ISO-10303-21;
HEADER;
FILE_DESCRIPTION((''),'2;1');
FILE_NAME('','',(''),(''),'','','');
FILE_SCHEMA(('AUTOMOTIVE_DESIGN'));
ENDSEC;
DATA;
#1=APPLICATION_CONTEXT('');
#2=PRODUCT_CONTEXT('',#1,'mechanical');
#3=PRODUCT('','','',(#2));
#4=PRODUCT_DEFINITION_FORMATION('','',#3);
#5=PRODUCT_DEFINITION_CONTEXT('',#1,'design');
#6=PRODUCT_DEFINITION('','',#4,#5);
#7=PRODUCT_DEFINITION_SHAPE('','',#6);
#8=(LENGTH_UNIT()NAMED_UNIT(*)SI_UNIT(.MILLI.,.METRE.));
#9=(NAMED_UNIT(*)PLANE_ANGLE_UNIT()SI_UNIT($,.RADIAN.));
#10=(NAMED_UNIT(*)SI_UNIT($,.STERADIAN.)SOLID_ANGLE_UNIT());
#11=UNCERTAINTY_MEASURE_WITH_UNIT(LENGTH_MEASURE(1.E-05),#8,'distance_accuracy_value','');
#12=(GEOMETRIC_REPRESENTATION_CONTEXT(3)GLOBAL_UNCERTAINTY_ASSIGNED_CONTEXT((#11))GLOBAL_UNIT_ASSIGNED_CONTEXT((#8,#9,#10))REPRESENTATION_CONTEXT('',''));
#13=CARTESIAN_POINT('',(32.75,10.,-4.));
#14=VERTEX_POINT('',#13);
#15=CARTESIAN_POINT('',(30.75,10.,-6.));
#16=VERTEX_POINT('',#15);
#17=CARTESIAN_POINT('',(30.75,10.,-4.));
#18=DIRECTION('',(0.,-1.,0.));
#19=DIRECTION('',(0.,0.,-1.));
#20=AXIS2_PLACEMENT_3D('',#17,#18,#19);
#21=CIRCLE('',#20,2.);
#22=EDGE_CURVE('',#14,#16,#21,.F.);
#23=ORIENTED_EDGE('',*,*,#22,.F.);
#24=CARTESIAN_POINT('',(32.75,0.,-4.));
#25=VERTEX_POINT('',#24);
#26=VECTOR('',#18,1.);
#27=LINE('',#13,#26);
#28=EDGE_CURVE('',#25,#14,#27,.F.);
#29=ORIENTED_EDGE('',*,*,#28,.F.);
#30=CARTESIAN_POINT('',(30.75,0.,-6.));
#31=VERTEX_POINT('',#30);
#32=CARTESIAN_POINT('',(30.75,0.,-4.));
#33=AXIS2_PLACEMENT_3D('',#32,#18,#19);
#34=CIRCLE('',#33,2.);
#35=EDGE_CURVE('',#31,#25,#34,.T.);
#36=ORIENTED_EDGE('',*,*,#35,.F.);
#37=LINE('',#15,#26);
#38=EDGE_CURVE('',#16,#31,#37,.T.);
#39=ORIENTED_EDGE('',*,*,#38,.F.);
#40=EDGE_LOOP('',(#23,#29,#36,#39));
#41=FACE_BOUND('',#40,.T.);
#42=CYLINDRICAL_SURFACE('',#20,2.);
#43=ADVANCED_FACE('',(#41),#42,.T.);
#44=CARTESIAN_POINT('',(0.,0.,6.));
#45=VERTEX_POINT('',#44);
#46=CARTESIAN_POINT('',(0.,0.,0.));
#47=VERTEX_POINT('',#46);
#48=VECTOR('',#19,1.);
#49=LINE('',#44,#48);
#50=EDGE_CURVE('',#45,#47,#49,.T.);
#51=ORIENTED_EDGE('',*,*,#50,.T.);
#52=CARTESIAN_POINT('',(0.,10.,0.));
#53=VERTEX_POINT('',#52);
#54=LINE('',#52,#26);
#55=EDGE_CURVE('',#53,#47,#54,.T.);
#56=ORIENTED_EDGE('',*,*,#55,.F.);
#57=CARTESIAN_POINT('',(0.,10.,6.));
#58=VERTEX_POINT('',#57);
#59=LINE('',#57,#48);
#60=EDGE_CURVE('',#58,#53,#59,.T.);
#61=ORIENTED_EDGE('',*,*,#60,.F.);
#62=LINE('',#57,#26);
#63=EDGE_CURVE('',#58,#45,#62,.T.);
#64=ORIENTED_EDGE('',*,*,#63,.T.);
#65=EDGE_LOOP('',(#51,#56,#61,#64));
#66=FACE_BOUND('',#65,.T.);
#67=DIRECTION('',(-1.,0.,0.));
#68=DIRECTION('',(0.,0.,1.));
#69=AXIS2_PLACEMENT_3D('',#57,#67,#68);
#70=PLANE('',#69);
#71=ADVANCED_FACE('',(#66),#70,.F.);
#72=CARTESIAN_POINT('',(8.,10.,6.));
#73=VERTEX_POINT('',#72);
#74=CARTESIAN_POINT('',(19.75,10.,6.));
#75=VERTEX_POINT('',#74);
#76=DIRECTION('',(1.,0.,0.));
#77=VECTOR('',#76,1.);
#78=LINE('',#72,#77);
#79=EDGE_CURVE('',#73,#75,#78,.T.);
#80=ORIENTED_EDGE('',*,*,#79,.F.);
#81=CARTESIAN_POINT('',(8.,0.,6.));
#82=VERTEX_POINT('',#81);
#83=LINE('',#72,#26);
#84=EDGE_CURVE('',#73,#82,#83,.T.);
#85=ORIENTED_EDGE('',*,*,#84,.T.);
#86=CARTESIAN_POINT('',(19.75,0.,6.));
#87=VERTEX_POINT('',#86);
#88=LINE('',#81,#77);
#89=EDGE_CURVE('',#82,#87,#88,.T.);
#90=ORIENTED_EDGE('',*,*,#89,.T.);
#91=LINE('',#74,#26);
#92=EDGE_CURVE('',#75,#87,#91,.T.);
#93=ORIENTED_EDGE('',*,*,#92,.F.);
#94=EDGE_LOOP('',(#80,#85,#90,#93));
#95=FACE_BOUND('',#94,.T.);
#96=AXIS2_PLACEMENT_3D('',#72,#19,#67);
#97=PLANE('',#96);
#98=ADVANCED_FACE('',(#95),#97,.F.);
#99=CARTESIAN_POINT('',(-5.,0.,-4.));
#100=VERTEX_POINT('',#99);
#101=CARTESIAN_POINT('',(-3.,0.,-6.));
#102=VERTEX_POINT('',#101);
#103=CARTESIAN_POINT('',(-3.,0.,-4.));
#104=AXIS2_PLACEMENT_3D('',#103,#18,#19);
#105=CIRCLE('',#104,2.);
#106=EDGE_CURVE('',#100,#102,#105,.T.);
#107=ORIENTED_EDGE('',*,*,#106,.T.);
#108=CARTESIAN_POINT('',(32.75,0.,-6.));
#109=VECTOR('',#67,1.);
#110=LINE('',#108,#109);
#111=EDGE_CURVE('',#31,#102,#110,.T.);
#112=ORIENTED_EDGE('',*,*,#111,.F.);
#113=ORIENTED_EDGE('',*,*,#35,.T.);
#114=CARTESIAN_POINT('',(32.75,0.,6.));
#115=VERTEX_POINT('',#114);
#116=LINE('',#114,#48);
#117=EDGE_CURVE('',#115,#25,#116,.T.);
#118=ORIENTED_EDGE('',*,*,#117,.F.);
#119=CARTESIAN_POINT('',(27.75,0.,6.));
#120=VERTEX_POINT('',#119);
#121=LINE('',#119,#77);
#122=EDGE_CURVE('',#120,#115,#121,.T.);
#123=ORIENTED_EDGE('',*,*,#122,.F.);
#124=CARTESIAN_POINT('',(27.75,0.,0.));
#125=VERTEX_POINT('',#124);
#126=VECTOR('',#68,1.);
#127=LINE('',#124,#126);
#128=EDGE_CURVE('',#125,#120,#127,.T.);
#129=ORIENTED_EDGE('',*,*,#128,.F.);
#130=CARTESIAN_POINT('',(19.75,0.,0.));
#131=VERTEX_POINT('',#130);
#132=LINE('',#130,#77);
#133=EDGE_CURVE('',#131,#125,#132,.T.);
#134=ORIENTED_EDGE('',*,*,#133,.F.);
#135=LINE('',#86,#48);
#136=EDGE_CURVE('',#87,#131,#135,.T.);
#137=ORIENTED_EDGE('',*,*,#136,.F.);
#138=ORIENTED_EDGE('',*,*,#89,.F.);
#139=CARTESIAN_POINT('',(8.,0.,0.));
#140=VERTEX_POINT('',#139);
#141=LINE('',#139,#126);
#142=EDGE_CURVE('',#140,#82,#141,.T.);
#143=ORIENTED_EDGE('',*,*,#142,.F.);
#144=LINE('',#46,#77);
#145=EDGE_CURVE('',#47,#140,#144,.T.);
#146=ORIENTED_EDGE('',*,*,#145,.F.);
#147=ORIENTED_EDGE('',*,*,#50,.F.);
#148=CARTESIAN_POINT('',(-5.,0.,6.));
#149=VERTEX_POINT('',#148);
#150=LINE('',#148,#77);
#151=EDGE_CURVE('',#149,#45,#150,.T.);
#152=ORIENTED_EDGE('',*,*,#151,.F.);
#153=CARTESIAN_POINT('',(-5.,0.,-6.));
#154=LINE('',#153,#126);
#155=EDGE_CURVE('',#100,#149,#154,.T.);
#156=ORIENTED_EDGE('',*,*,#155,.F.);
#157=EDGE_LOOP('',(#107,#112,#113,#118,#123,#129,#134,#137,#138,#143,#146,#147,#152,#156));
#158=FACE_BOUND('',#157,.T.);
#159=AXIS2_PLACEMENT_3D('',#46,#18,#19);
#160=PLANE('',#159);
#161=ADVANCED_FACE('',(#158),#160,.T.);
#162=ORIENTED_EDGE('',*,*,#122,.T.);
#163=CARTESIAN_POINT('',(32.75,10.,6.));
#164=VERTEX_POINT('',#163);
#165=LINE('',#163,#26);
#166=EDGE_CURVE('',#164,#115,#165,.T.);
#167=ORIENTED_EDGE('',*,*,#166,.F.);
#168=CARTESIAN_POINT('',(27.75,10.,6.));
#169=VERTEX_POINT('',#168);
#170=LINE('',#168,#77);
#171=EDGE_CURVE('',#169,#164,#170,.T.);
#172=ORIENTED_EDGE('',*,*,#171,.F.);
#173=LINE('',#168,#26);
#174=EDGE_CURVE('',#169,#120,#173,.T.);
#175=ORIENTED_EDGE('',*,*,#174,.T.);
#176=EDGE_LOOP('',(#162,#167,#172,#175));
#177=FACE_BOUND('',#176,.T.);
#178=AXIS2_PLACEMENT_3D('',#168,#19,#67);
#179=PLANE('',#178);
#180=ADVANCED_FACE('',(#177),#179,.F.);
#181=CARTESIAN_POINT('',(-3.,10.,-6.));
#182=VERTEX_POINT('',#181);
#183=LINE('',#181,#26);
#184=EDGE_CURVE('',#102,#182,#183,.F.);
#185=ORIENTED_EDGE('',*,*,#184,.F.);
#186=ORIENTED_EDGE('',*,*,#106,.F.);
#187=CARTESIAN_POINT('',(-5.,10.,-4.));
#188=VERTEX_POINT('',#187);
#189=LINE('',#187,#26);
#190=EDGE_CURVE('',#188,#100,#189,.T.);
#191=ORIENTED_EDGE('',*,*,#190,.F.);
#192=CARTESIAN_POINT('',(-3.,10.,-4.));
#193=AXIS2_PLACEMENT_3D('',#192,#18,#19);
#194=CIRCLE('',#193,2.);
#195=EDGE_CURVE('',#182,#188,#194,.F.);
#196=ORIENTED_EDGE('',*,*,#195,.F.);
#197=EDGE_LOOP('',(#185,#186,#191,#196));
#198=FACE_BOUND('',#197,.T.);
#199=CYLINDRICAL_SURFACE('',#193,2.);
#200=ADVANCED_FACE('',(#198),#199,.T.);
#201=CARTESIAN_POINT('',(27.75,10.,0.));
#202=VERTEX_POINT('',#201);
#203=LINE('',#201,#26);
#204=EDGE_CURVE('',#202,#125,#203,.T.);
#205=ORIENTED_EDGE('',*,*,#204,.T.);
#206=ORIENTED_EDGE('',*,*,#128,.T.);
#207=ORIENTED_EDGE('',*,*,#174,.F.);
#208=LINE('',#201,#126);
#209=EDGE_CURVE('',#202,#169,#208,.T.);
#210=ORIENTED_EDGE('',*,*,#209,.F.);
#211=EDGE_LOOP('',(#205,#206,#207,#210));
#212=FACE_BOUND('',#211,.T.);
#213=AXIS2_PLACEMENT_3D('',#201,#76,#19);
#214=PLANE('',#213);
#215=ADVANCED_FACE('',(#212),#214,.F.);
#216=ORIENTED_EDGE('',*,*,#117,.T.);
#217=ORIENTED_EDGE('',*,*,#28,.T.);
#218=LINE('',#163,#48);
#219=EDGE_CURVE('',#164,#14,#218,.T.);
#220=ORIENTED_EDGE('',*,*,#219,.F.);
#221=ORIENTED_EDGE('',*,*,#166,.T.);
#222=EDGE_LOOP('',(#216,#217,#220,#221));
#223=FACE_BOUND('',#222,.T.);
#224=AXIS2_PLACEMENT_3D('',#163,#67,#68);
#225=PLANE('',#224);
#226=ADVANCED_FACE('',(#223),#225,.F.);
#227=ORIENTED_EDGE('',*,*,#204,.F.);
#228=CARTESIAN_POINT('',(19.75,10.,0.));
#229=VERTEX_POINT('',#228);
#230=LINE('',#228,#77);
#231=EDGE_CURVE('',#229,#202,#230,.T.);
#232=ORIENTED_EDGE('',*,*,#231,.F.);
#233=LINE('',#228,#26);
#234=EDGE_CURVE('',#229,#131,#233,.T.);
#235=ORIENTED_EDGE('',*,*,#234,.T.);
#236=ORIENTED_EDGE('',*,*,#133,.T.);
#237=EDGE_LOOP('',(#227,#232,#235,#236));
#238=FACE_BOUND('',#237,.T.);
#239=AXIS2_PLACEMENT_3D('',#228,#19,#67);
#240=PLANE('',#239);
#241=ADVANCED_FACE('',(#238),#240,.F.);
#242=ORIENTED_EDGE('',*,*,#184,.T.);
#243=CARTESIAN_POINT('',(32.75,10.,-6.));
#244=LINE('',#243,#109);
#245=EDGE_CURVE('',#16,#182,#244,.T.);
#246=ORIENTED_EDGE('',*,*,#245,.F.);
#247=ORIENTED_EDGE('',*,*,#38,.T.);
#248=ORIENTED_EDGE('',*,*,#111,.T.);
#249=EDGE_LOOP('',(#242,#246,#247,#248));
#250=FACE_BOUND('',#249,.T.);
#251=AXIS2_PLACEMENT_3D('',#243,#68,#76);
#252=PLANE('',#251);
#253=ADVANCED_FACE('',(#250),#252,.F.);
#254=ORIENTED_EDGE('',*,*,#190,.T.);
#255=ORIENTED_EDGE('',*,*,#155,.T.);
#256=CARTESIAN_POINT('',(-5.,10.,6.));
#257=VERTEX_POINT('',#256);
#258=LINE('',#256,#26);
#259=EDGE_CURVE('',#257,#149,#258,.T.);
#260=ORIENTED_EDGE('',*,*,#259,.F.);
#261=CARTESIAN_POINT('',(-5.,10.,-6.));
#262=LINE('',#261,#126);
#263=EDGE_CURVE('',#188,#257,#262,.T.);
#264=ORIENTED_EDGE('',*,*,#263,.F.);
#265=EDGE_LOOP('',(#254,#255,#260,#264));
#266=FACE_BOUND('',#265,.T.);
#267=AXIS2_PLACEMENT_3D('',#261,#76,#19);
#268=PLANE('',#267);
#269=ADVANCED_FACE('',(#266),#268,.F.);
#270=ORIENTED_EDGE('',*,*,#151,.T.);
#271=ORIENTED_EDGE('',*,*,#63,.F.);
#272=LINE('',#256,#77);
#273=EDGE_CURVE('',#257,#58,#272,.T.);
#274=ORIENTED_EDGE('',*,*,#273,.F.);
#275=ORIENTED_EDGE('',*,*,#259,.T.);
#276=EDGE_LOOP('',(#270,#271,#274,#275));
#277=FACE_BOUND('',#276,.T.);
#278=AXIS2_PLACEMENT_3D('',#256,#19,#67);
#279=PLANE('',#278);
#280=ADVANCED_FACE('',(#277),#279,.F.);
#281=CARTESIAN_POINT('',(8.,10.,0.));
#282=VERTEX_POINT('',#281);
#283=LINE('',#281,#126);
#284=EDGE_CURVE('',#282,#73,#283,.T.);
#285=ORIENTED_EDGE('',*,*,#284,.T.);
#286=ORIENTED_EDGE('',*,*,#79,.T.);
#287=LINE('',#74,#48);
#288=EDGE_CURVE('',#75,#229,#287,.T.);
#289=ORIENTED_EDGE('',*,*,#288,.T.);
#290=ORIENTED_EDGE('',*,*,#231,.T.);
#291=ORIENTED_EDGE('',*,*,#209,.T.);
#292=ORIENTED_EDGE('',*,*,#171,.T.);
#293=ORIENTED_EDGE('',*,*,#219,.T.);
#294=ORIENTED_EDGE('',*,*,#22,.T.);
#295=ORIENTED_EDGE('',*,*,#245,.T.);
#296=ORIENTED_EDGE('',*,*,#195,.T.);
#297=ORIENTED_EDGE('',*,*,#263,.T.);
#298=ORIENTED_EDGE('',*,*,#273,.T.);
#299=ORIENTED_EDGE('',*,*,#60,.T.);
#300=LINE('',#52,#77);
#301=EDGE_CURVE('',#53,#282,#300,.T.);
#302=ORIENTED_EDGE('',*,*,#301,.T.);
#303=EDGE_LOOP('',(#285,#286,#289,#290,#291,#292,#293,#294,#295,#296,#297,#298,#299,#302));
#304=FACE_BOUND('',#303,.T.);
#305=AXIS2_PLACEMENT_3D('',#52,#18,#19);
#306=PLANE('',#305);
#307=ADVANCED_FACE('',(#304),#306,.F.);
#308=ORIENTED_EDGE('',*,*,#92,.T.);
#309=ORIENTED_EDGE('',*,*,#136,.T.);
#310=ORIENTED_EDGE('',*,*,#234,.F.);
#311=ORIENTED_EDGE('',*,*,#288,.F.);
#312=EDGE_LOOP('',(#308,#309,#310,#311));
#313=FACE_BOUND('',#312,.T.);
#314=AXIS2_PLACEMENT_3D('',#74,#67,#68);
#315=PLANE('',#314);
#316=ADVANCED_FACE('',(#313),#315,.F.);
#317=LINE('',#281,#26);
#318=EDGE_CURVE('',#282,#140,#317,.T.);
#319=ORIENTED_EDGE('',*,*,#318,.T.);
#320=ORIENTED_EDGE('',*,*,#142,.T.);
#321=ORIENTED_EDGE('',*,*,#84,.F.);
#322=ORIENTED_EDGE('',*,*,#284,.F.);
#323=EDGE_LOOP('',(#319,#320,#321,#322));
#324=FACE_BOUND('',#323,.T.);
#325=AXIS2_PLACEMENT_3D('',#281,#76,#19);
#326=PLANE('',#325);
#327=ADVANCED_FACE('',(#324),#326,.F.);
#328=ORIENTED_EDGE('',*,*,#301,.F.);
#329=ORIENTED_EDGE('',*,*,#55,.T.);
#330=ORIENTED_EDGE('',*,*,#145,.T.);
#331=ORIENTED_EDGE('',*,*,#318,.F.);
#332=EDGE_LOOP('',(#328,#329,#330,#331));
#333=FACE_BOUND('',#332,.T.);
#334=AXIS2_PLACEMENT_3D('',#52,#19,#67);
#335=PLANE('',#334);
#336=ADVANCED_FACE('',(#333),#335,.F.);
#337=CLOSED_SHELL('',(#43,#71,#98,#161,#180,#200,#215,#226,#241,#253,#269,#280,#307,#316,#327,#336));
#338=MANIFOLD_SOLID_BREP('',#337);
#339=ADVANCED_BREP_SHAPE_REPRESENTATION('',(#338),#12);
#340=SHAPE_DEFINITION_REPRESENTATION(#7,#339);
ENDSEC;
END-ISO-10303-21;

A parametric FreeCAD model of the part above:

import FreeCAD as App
import Part
import Sketcher
from FreeCAD import Vector
Q = App.Units.Quantity


def edges_at(feature, points):
    """Names of the edges that pass closest to the given points."""
    edges = feature.Shape.Edges
    near = lambda p: min(range(len(edges)), key=lambda i: edges[i].distToShape(Part.Vertex(*p))[0])
    return sorted({f"Edge{near(p) + 1}" for p in points})

doc = App.newDocument("Part")
body = doc.addObject("PartDesign::Body", "Body")

sketch1 = body.newObject("Sketcher::SketchObject", "Sketch")
sketch1.AttachmentSupport = (doc.getObject("XZ_Plane"), [""])
sketch1.MapMode = "FlatFace"
sketch1.addGeometry([
    Part.LineSegment(Vector(0, 0, 0), Vector(8, 0, 0)),
    Part.LineSegment(Vector(8, 0, 0), Vector(8, 6, 0)),
    Part.LineSegment(Vector(8, 6, 0), Vector(19.75, 6, 0)),
    Part.LineSegment(Vector(19.75, 6, 0), Vector(19.75, 0, 0)),
    Part.LineSegment(Vector(19.75, 0, 0), Vector(27.75, 0, 0)),
    Part.LineSegment(Vector(27.75, 0, 0), Vector(27.75, 6, 0)),
    Part.LineSegment(Vector(27.75, 6, 0), Vector(32.75, 6, 0)),
    Part.LineSegment(Vector(32.75, 6, 0), Vector(32.75, -6, 0)),
    Part.LineSegment(Vector(32.75, -6, 0), Vector(-5, -6, 0)),
    Part.LineSegment(Vector(-5, -6, 0), Vector(-5, 6, 0)),
    Part.LineSegment(Vector(-5, 6, 0), Vector(0, 6, 0)),
    Part.LineSegment(Vector(0, 6, 0), Vector(0, 0, 0)),
], False)
sketch1.addConstraint([
    Sketcher.Constraint("Coincident", 0, 2, 1, 1),
    Sketcher.Constraint("Coincident", 1, 2, 2, 1),
    Sketcher.Constraint("Coincident", 2, 2, 3, 1),
    Sketcher.Constraint("Coincident", 3, 2, 4, 1),
    Sketcher.Constraint("Coincident", 4, 2, 5, 1),
    Sketcher.Constraint("Coincident", 5, 2, 6, 1),
    Sketcher.Constraint("Coincident", 6, 2, 7, 1),
    Sketcher.Constraint("Coincident", 7, 2, 8, 1),
    Sketcher.Constraint("Coincident", 8, 2, 9, 1),
    Sketcher.Constraint("Coincident", 9, 2, 10, 1),
    Sketcher.Constraint("Coincident", 10, 2, 11, 1),
    Sketcher.Constraint("Coincident", 11, 2, 0, 1),
    Sketcher.Constraint("Horizontal", 0),
    Sketcher.Constraint("Vertical", 1),
    Sketcher.Constraint("Horizontal", 2),
    Sketcher.Constraint("Vertical", 3),
    Sketcher.Constraint("Horizontal", 4),
    Sketcher.Constraint("Vertical", 5),
    Sketcher.Constraint("Horizontal", 6),
    Sketcher.Constraint("Vertical", 7),
    Sketcher.Constraint("Horizontal", 8),
    Sketcher.Constraint("Vertical", 9),
    Sketcher.Constraint("Horizontal", 10),
    Sketcher.Constraint("Vertical", 11),
    Sketcher.Constraint("Coincident", 11, 2, -1, 1),
    Sketcher.Constraint("PointOnObject", 3, 2, -1),
    Sketcher.Constraint("Horizontal", 2, 2, 5, 2),
    Sketcher.Constraint("Horizontal", 6, 2, 9, 2),
    Sketcher.Constraint("Equal", 0, 4),
    Sketcher.Constraint("Equal", 6, 10),
    Sketcher.Constraint("DistanceX", 0, 1, 0, 2, Q("8 mm")),
    Sketcher.Constraint("DistanceX", 6, 1, 6, 2, Q("5 mm")),
    Sketcher.Constraint("DistanceY", 1, 1, 1, 2, Q("6 mm")),
    Sketcher.Constraint("DistanceY", 7, 2, 7, 1, Q("12 mm")),
    Sketcher.Constraint("DistanceX", 2, 1, 2, 2, Q("11.75 mm")),
])
pad1 = body.newObject("PartDesign::Pad", "Pad")
pad1.Profile = sketch1
pad1.Length = 10
pad1.Reversed = True
doc.recompute()

fillet = body.newObject("PartDesign::Fillet", "Fillet")
fillet.Base = (pad1, edges_at(pad1, [(-5, 5, -6), (32.75, 5, -6)]))
fillet.Radius = 2

doc.recompute()
